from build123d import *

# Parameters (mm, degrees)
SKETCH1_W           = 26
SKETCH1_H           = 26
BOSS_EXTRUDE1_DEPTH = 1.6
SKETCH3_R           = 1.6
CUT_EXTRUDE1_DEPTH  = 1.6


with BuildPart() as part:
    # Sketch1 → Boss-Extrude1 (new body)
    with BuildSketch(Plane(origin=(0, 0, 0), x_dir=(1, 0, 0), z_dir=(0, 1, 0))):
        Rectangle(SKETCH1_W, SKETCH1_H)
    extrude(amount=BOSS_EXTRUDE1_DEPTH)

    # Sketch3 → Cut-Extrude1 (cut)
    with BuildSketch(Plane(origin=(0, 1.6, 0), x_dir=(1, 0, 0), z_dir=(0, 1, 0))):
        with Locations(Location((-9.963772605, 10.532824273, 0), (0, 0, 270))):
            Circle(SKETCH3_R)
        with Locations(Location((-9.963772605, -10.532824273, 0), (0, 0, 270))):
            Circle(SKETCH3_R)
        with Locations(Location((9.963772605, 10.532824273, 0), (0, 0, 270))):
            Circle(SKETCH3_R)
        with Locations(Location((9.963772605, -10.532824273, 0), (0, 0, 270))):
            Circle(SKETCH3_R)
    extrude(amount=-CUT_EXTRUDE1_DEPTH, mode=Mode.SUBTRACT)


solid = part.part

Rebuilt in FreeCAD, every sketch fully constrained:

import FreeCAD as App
import Part
import Sketcher


def add_polygon(sketch, points):
    """Adds a closed chain of lines whose ends are joined by coincident constraints."""
    first, n = sketch.GeometryCount, len(points)
    for a, b in zip(points, points[1:] + points[:1]):
        sketch.addGeometry(Part.LineSegment(App.Vector(*a, 0), App.Vector(*b, 0)), False)
    for i in range(n):
        sketch.addConstraint(Sketcher.Constraint("Coincident", first + i, 2, first + (i + 1) % n, 1))

doc = App.newDocument("Part")
params = doc.addObject("Spreadsheet::Sheet", "Params")
for row, (alias, value) in enumerate([
    ("sketch1_width", "26 mm"),
    ("pad1_length", "1.6 mm"),
    ("sketch2_diameter", "3.2 mm"),
    ("pocket1_length", "1.6 mm"),
], start=1):
    params.set(f"A{row}", alias)
    params.set(f"B{row}", "=" + value)
    params.setAlias(f"B{row}", alias)

body = doc.addObject("PartDesign::Body", "Body")

sketch1 = doc.addObject("Sketcher::SketchObject", "Sketch")
body.addObject(sketch1)
sketch1.AttachmentSupport = (doc.XZ_Plane, [""])
sketch1.MapMode = "FlatFace"
add_polygon(sketch1, [(-13, -13), (-13, 13), (13, 13), (13, -13)])
sketch1.addConstraint(Sketcher.Constraint("Vertical", 0))
sketch1.addConstraint(Sketcher.Constraint("Horizontal", 1))
sketch1.addConstraint(Sketcher.Constraint("Vertical", 2))
sketch1.addConstraint(Sketcher.Constraint("Horizontal", 3))
sketch1.addConstraint(Sketcher.Constraint("Symmetric", 0, 2, 2, 2, -1, 1))
sketch1.addConstraint(Sketcher.Constraint("Equal", 3, 0))
sketch1.addConstraint(Sketcher.Constraint("DistanceX", 1, 1, 1, 2, 26.0))
sketch1.setExpression("Constraints[10]", "Params.sketch1_width")
pad1 = doc.addObject("PartDesign::Pad", "Pad")
body.addObject(pad1)
pad1.Profile = sketch1
pad1.setExpression("Length", "Params.pad1_length")
pad1.Reversed = True

sketch2 = doc.addObject("Sketcher::SketchObject", "Sketch001")
body.addObject(sketch2)
sketch2.AttachmentSupport = (doc.XZ_Plane, [""])
sketch2.MapMode = "FlatFace"
sketch2.AttachmentOffset = App.Placement(App.Vector(0, 0, -1.6), App.Rotation())
sketch2.addGeometry(Part.Circle(App.Vector(-9.963773, -10.532824, 0), App.Vector(0, 0, 1), 1.6), False)
sketch2.addGeometry(Part.Circle(App.Vector(-9.963773, 10.532824, 0), App.Vector(0, 0, 1), 1.6), False)
sketch2.addGeometry(Part.Circle(App.Vector(9.963773, -10.532824, 0), App.Vector(0, 0, 1), 1.6), False)
sketch2.addGeometry(Part.Circle(App.Vector(9.963773, 10.532824, 0), App.Vector(0, 0, 1), 1.6), False)
sketch2.addConstraint(Sketcher.Constraint("Equal", 0, 1))
sketch2.addConstraint(Sketcher.Constraint("Equal", 1, 2))
sketch2.addConstraint(Sketcher.Constraint("Equal", 2, 3))
sketch2.addConstraint(Sketcher.Constraint("Symmetric", 1, 3, 2, 3, -1, 1))
sketch2.addConstraint(Sketcher.Constraint("Symmetric", 0, 3, 3, 3, -1, 1))
sketch2.addConstraint(Sketcher.Constraint("Symmetric", 0, 3, 2, 3, -2))
sketch2.addConstraint(Sketcher.Constraint("Diameter", 0, 3.2))
sketch2.addConstraint(Sketcher.Constraint("DistanceY", 0, 3, 1, 3, 21.065649))
sketch2.addConstraint(Sketcher.Constraint("DistanceX", 0, 3, -1, 1, 9.963773))
sketch2.setExpression("Constraints[6]", "Params.sketch2_diameter")
pocket1 = doc.addObject("PartDesign::Pocket", "Pocket")
body.addObject(pocket1)
pocket1.Profile = sketch2
pocket1.setExpression("Length", "Params.pocket1_length")
pocket1.Reversed = True

doc.recompute()
